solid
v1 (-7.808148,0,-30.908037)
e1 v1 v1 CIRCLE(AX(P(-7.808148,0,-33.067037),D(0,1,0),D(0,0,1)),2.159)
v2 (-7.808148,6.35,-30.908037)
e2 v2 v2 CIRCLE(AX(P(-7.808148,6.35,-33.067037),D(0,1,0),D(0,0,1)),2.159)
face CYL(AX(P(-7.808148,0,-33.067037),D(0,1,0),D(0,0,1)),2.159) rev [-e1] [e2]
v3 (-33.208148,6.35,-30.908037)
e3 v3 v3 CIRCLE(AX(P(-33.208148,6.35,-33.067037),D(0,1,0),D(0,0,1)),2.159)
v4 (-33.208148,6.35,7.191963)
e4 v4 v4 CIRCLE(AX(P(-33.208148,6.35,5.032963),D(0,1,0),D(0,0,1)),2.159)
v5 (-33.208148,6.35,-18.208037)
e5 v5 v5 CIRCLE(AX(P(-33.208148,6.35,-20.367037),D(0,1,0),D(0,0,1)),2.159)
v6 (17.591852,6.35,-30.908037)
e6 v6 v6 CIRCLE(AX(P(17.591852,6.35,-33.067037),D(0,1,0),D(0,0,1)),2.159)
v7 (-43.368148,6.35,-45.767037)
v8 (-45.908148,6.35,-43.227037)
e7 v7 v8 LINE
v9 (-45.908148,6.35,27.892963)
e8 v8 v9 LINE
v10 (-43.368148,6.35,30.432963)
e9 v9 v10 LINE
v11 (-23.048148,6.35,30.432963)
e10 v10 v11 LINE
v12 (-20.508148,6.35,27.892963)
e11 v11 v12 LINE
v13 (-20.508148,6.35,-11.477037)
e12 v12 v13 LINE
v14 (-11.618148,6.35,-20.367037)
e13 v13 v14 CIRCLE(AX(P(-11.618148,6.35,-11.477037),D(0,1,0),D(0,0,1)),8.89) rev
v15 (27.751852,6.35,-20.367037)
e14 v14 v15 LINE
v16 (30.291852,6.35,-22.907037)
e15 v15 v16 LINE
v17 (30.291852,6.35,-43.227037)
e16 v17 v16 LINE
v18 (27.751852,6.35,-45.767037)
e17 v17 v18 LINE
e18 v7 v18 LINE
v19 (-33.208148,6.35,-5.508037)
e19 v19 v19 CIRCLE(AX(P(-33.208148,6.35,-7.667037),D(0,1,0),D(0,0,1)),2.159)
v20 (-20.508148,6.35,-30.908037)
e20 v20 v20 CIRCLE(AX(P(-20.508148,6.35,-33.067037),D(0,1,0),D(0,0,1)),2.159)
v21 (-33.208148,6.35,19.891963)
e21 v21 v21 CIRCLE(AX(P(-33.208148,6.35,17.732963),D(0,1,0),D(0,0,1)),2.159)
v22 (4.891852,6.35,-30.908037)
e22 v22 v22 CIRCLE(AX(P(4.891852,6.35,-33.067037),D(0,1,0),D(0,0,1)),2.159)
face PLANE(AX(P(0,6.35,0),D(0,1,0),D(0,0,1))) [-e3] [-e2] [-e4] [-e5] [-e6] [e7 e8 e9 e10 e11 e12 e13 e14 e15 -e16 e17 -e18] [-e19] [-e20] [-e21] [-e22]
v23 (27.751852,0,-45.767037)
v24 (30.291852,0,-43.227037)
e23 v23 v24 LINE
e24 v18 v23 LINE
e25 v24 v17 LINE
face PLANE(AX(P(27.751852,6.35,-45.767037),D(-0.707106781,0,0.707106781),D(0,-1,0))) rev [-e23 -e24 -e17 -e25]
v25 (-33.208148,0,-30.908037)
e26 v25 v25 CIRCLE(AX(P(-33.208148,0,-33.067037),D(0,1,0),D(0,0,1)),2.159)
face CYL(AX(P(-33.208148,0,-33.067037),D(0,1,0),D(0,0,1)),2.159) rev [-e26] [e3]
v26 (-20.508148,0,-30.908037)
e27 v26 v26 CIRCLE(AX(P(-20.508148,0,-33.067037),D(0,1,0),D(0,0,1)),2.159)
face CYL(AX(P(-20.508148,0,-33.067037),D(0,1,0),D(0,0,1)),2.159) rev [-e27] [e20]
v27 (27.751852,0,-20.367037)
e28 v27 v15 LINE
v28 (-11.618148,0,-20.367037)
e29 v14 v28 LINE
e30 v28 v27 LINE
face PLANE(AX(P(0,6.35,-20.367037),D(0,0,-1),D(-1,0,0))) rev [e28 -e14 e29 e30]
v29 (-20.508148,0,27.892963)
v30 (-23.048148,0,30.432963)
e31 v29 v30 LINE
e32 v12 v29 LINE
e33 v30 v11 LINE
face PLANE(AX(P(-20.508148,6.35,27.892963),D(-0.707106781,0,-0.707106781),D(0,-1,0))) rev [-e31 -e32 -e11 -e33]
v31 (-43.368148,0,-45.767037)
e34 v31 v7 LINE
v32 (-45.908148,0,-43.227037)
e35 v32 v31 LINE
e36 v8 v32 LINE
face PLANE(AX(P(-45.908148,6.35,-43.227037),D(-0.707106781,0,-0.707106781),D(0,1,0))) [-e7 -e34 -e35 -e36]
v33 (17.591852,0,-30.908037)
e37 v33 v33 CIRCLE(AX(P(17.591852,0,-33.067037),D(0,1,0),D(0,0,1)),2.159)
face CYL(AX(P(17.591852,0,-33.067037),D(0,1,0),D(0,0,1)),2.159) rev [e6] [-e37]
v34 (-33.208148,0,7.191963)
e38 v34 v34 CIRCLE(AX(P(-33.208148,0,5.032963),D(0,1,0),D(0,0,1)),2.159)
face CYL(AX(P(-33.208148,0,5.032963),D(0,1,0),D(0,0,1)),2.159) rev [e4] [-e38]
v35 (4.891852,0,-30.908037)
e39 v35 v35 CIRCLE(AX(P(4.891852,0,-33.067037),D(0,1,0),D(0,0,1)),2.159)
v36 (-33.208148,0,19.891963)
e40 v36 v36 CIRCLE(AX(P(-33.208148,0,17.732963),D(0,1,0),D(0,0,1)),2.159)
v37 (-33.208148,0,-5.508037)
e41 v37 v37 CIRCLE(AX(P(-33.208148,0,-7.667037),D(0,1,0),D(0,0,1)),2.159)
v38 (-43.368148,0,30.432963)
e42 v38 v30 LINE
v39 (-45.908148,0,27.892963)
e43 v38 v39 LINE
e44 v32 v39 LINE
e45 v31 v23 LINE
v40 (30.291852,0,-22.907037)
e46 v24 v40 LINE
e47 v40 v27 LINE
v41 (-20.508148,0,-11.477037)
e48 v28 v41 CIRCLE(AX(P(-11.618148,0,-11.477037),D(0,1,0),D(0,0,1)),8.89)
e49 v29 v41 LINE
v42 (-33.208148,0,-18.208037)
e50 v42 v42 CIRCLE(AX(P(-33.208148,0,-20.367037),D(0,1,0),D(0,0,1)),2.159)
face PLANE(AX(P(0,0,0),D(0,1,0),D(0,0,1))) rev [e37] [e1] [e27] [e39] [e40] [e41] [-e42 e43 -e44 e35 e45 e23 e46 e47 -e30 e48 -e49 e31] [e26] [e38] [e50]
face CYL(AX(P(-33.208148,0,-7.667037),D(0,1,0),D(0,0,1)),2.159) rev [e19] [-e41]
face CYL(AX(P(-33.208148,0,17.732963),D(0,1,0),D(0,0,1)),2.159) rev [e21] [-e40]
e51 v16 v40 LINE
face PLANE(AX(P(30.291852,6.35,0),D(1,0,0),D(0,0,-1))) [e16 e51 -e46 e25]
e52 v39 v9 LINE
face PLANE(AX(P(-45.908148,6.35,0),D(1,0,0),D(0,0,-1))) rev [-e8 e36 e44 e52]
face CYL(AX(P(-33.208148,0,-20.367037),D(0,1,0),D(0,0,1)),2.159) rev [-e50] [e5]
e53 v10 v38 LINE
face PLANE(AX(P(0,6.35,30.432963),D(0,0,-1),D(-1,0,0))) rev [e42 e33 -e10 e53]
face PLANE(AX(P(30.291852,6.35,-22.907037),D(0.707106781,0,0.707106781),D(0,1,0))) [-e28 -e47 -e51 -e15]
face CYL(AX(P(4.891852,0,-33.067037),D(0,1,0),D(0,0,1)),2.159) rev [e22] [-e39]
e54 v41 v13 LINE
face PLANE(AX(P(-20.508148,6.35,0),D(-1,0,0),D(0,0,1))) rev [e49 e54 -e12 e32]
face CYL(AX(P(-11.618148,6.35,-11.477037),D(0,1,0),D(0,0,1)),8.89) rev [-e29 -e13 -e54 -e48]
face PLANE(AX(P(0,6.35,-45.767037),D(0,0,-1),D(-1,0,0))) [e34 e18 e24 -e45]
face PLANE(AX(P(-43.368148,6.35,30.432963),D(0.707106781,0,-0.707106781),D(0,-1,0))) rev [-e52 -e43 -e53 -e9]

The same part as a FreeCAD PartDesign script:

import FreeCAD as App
import Part
import Sketcher

V = App.Vector
Q = App.Units.Quantity


def edges_at(feature, points):
    """Names of the edges that pass closest to the given points."""
    edges = feature.Shape.Edges
    near = lambda p: min(range(len(edges)), key=lambda i: edges[i].distToShape(Part.Vertex(*p))[0])
    return sorted({f"Edge{near(p) + 1}" for p in points})

doc = App.newDocument("Part")
body = doc.addObject("PartDesign::Body", "Body")

sketch1 = body.newObject("Sketcher::SketchObject", "Sketch")
sketch1.AttachmentSupport = (doc.getObject("XZ_Plane"), [""])
sketch1.MapMode = "FlatFace"
sketch1.addGeometry([
    Part.LineSegment(V(-46, 30, 0), V(-21, 30, 0)),
    Part.LineSegment(V(-21, 30, 0), V(-21, -20, 0)),
    Part.LineSegment(V(-21, -20, 0), V(30, -20, 0)),
    Part.LineSegment(V(30, -20, 0), V(30, -46, 0)),
    Part.LineSegment(V(30, -46, 0), V(-46, -46, 0)),
    Part.LineSegment(V(-46, -46, 0), V(-46, 30, 0)),
], False)
sketch1.addConstraint([
    Sketcher.Constraint("Coincident", 0, 2, 1, 1),
    Sketcher.Constraint("Coincident", 1, 2, 2, 1),
    Sketcher.Constraint("Coincident", 2, 2, 3, 1),
    Sketcher.Constraint("Coincident", 3, 2, 4, 1),
    Sketcher.Constraint("Coincident", 4, 2, 5, 1),
    Sketcher.Constraint("Coincident", 5, 2, 0, 1),
    Sketcher.Constraint("Horizontal", 0),
    Sketcher.Constraint("Vertical", 1),
    Sketcher.Constraint("Horizontal", 2),
    Sketcher.Constraint("Vertical", 3),
    Sketcher.Constraint("Horizontal", 4),
    Sketcher.Constraint("Vertical", 5),
    Sketcher.Constraint("Equal", 2, 1),
    Sketcher.Constraint("Equal", 0, 3),
    Sketcher.Constraint("DistanceX", 0, 1, 0, 2, Q("1 in")),
    Sketcher.Constraint("DistanceX", 2, 1, 2, 2, Q("2 in")),
    Sketcher.Constraint("DistanceX", 0, 2, -1, 1, Q("20.508148 mm")),
    Sketcher.Constraint("DistanceY", -1, 1, 0, 2, Q("30.432963 mm")),
])
pad1 = body.newObject("PartDesign::Pad", "Pad")
pad1.Profile = sketch1
pad1.Length = Q("0.25 in")
pad1.Reversed = True
doc.recompute()

chamfer = body.newObject("PartDesign::Chamfer", "Chamfer")
chamfer.Base = (pad1, edges_at(pad1, [(-20.508, 3.175, 30.433)]))
chamfer.Size = Q("0.1 in")
doc.recompute()

chamfer2 = body.newObject("PartDesign::Chamfer", "Chamfer001")
chamfer2.Base = (chamfer, edges_at(chamfer, [(30.292, 3.175, -20.367)]))
chamfer2.Size = Q("0.1 in")
doc.recompute()

chamfer3 = body.newObject("PartDesign::Chamfer", "Chamfer002")
chamfer3.Base = (chamfer2, edges_at(chamfer2, [(30.292, 3.175, -45.767)]))
chamfer3.Size = Q("0.1 in")
doc.recompute()

chamfer4 = body.newObject("PartDesign::Chamfer", "Chamfer003")
chamfer4.Base = (chamfer3, edges_at(chamfer3, [(-45.908, 3.175, 30.433)]))
chamfer4.Size = Q("0.1 in")
doc.recompute()

chamfer5 = body.newObject("PartDesign::Chamfer", "Chamfer004")
chamfer5.Base = (chamfer4, edges_at(chamfer4, [(-45.908, 3.175, -45.767)]))
chamfer5.Size = Q("0.1 in")
doc.recompute()

fillet = body.newObject("PartDesign::Fillet", "Fillet")
fillet.Base = (chamfer5, edges_at(chamfer5, [(-20.508, 3.175, -20.367)]))
fillet.Radius = Q("0.35 in")

sketch2 = body.newObject("Sketcher::SketchObject", "Sketch001")
sketch2.AttachmentSupport = (doc.getObject("XZ_Plane"), [""])
sketch2.MapMode = "FlatFace"
sketch2.AttachmentOffset = App.Placement(V(0, 0, -0.25 * 25.4), App.Rotation())
sketch2.addGeometry([
    Part.Circle(V(-33.2, -33.1, 0), V(0, 0, 1), 2.2),
    Part.Circle(V(-20.5, -33.1, 0), V(0, 0, 1), 2.2),
    Part.Circle(V(-7.8, -33.1, 0), V(0, 0, 1), 2.2),
    Part.Circle(V(4.9, -33.1, 0), V(0, 0, 1), 2.2),
    Part.Circle(V(17.6, -33.1, 0), V(0, 0, 1), 2.2),
    Part.Circle(V(-33.2, -20.4, 0), V(0, 0, 1), 2.2),
    Part.Circle(V(-33.2, -7.7, 0), V(0, 0, 1), 2.2),
    Part.Circle(V(-33.2, 5, 0), V(0, 0, 1), 2.2),
    Part.Circle(V(-33.2, 17.7, 0), V(0, 0, 1), 2.2),
], False)
sketch2.addConstraint([
    Sketcher.Constraint("Equal", 0, 1),
    Sketcher.Constraint("Equal", 1, 2),
    Sketcher.Constraint("Equal", 2, 3),
    Sketcher.Constraint("Equal", 3, 4),
    Sketcher.Constraint("Equal", 4, 5),
    Sketcher.Constraint("Equal", 5, 6),
    Sketcher.Constraint("Equal", 6, 7),
    Sketcher.Constraint("Equal", 7, 8),
    Sketcher.Constraint("Horizontal", 0, 3, 1, 3),
    Sketcher.Constraint("Horizontal", 1, 3, 2, 3),
    Sketcher.Constraint("Horizontal", 2, 3, 3, 3),
    Sketcher.Constraint("Horizontal", 3, 3, 4, 3),
    Sketcher.Constraint("Vertical", 0, 3, 5, 3),
    Sketcher.Constraint("Vertical", 5, 3, 6, 3),
    Sketcher.Constraint("Vertical", 6, 3, 7, 3),
    Sketcher.Constraint("Vertical", 7, 3, 8, 3),
    Sketcher.Constraint("Diameter", 0, Q("0.17 in")),
    Sketcher.Constraint("DistanceX", 0, 3, 2, 3, Q("1 in")),
    Sketcher.Constraint("DistanceX", 1, 3, 3, 3, Q("1 in")),
    Sketcher.Constraint("DistanceX", 2, 3, 4, 3, Q("1 in")),
    Sketcher.Constraint("DistanceY", 0, 3, 6, 3, Q("1 in")),
    Sketcher.Constraint("DistanceY", 5, 3, 7, 3, Q("1 in")),
    Sketcher.Constraint("DistanceY", 6, 3, 8, 3, Q("1 in")),
    Sketcher.Constraint("DistanceX", 0, 3, 1, 3, Q("0.5 in")),
    Sketcher.Constraint("DistanceY", 0, 3, 5, 3, Q("0.5 in")),
    Sketcher.Constraint("DistanceX", 0, 3, -1, 1, Q("33.208148 mm")),
    Sketcher.Constraint("DistanceY", 0, 3, -1, 1, Q("33.067037 mm")),
])
pocket1 = body.newObject("PartDesign::Pocket", "Pocket")
pocket1.Profile = sketch2
pocket1.Type = "ThroughAll"
pocket1.Reversed = True

doc.recompute()
